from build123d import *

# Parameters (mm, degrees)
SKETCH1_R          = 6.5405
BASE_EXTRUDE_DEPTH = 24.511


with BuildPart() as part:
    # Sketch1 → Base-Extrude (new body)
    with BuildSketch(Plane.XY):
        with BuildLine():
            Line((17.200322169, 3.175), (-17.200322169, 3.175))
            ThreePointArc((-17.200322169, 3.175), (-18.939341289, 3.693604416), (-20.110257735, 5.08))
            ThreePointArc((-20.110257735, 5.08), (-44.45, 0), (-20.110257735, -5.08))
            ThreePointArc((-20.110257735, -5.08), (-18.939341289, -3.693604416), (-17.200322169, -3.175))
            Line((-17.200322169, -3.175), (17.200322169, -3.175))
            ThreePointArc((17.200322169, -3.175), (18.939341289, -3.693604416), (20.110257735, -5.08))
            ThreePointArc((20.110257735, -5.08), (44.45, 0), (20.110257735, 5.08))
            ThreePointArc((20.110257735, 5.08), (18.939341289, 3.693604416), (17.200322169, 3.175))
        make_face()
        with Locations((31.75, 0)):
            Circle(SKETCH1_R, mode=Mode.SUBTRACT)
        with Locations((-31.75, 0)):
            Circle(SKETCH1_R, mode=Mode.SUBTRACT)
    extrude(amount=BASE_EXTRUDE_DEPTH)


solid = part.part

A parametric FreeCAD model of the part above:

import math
import FreeCAD as App
import Part
import Sketcher
Q = App.Units.Quantity

doc = App.newDocument("Part")
body = doc.addObject("PartDesign::Body", "Body")

# Sketch on XY plane
sketch1 = body.newObject("Sketcher::SketchObject", "Sketch")
sketch1.AttachmentSupport = (doc.getObject("XY_Plane"), [""])
sketch1.MapMode = "FlatFace"
sketch1.addGeometry(Part.LineSegment(App.Vector(17.2, 3.2, 0), App.Vector(-17.2, 3.2, 0)), False)
sketch1.addGeometry(Part.ArcOfCircle(Part.Circle(App.Vector(-17.2, 6.3, 0), App.Vector(0, 0, 1), 3.2), math.radians(-156), math.radians(-90)), False)
sketch1.addGeometry(Part.ArcOfCircle(Part.Circle(App.Vector(-31.8, 0, 0), App.Vector(0, 0, 1), 12.7), math.radians(24), math.radians(336)), False)
sketch1.addGeometry(Part.ArcOfCircle(Part.Circle(App.Vector(-17.2, -6.3, 0), App.Vector(0, 0, 1), 3.2), math.radians(90), math.radians(156)), False)
sketch1.addGeometry(Part.LineSegment(App.Vector(-17.2, -3.2, 0), App.Vector(17.2, -3.2, 0)), False)
sketch1.addGeometry(Part.ArcOfCircle(Part.Circle(App.Vector(17.2, -6.3, 0), App.Vector(0, 0, 1), 3.2), math.radians(24), math.radians(90)), False)
sketch1.addGeometry(Part.ArcOfCircle(Part.Circle(App.Vector(31.8, 0, 0), App.Vector(0, 0, 1), 12.7), math.radians(-156), math.radians(156)), False)
sketch1.addGeometry(Part.ArcOfCircle(Part.Circle(App.Vector(17.2, 6.3, 0), App.Vector(0, 0, 1), 3.2), math.radians(-90), math.radians(-24)), False)
sketch1.addGeometry(Part.Circle(App.Vector(-31.8, 0, 0), App.Vector(0, 0, 1), 6.5), False)
sketch1.addGeometry(Part.Circle(App.Vector(31.8, 0, 0), App.Vector(0, 0, 1), 6.5), False)
sketch1.addConstraint(Sketcher.Constraint("Tangent", 0, 2, 1, 2))
sketch1.addConstraint(Sketcher.Constraint("Tangent", 1, 1, 2, 1))
sketch1.addConstraint(Sketcher.Constraint("Tangent", 2, 2, 3, 2))
sketch1.addConstraint(Sketcher.Constraint("Tangent", 3, 1, 4, 1))
sketch1.addConstraint(Sketcher.Constraint("Tangent", 4, 2, 5, 2))
sketch1.addConstraint(Sketcher.Constraint("Tangent", 5, 1, 6, 1))
sketch1.addConstraint(Sketcher.Constraint("Tangent", 6, 2, 7, 2))
sketch1.addConstraint(Sketcher.Constraint("Tangent", 7, 1, 0, 1))
sketch1.addConstraint(Sketcher.Constraint("Horizontal", 0))
sketch1.addConstraint(Sketcher.Constraint("Horizontal", 4))
sketch1.addConstraint(Sketcher.Constraint("Coincident", 8, 3, 2, 3))
sketch1.addConstraint(Sketcher.Constraint("Coincident", 9, 3, 6, 3))
sketch1.addConstraint(Sketcher.Constraint("Equal", 1, 3))
sketch1.addConstraint(Sketcher.Constraint("Equal", 3, 5))
sketch1.addConstraint(Sketcher.Constraint("Equal", 2, 6))
sketch1.addConstraint(Sketcher.Constraint("Equal", 5, 7))
sketch1.addConstraint(Sketcher.Constraint("Equal", 8, 9))
sketch1.addConstraint(Sketcher.Constraint("Symmetric", 1, 3, 5, 3, -1, 1))
sketch1.addConstraint(Sketcher.Constraint("Symmetric", 2, 3, 6, 3, -2))
sketch1.addConstraint(Sketcher.Constraint("Radius", 2, Q("0.5 in")))
sketch1.addConstraint(Sketcher.Constraint("Diameter", 8, Q("0.515 in")))
sketch1.addConstraint(Sketcher.Constraint("Radius", 1, Q("0.125 in")))
sketch1.addConstraint(Sketcher.Constraint("DistanceY", -1, 1, 1, 1, Q("0.2 in")))
sketch1.addConstraint(Sketcher.Constraint("DistanceX", 2, 3, 6, 3, Q("2.5 in")))
pad1 = body.newObject("PartDesign::Pad", "Pad")
pad1.Profile = sketch1
pad1.Length = Q("0.965 in")

doc.recompute()
